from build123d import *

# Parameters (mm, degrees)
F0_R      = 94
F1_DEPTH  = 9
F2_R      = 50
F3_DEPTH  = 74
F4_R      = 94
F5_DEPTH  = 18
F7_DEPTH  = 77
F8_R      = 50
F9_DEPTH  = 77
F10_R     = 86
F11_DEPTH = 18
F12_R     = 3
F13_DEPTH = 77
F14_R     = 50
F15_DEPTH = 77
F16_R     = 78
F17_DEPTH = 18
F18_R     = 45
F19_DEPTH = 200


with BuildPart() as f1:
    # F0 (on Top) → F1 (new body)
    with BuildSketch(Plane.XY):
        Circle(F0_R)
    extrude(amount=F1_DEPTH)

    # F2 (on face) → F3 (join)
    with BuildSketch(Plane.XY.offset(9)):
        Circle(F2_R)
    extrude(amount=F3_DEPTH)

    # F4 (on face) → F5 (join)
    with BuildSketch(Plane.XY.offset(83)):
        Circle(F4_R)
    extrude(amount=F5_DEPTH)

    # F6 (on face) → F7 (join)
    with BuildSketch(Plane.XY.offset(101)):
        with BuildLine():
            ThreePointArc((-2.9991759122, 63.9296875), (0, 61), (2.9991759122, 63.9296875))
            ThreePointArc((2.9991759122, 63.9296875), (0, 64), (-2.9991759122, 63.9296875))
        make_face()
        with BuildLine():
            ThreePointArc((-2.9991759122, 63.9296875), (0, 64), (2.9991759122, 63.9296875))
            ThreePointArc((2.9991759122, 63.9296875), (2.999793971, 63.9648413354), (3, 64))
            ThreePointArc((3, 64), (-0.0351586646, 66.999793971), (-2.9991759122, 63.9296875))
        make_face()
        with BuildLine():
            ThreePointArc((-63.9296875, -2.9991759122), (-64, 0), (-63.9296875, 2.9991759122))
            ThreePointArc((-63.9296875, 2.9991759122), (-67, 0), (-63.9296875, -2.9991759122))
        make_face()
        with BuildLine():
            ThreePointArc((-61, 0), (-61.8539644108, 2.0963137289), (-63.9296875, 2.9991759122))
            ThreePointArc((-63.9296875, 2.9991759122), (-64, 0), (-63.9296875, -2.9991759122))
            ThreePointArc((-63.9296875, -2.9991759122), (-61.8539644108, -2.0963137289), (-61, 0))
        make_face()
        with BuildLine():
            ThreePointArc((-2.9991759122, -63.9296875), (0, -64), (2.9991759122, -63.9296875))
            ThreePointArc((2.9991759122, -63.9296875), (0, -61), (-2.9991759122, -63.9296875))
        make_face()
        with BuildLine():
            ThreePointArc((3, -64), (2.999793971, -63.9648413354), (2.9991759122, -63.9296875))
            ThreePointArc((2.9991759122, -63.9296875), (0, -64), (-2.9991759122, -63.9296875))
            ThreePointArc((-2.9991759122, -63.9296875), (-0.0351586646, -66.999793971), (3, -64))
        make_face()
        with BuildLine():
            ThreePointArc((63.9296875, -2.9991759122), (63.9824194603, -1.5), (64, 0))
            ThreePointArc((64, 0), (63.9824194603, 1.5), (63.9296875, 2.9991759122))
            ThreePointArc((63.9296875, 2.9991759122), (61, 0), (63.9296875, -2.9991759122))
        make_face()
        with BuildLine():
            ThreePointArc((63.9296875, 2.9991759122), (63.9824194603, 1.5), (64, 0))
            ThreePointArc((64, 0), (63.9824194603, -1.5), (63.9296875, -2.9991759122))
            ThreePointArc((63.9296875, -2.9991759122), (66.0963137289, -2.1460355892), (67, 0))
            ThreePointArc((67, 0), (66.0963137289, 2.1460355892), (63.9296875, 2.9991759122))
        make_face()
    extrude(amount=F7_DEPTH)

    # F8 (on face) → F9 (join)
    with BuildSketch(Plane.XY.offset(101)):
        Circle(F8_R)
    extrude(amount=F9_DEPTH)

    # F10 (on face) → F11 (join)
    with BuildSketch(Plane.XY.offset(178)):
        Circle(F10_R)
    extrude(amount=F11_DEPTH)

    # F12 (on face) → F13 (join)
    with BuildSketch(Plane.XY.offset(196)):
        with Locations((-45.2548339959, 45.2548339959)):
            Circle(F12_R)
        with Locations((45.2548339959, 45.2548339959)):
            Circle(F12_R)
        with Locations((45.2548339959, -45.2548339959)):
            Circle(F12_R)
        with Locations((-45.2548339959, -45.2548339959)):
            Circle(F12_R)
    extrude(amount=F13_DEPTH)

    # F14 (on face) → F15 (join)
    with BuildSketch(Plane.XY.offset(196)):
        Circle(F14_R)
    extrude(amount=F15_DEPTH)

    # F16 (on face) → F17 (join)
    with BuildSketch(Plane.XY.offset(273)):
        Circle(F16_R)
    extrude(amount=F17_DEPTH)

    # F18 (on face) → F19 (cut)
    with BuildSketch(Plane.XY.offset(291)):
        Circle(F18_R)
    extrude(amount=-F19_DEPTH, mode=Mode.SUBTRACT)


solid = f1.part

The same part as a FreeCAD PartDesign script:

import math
import FreeCAD as App
import Part
import Sketcher
from FreeCAD import Vector

doc = App.newDocument("Part")
body = doc.addObject("PartDesign::Body", "Body")

sketch1 = body.newObject("Sketcher::SketchObject", "Sketch")
sketch1.AttachmentSupport = (doc.getObject("XY_Plane"), [""])
sketch1.MapMode = "FlatFace"
sketch1.addGeometry(Part.Circle(Vector(0, 0, 0), Vector(0, 0, 1), 94), False)
sketch1.addConstraint(Sketcher.Constraint("Coincident", 0, 3, -1, 1))
sketch1.addConstraint(Sketcher.Constraint("Diameter", 0, 188.0))
pad1 = body.newObject("PartDesign::Pad", "Pad")
pad1.Profile = sketch1
pad1.Length = 9

sketch2 = body.newObject("Sketcher::SketchObject", "Sketch001")
sketch2.AttachmentSupport = (doc.getObject("XY_Plane"), [""])
sketch2.MapMode = "FlatFace"
sketch2.AttachmentOffset = App.Placement(Vector(0, 0, 9), App.Rotation())
sketch2.addGeometry(Part.Circle(Vector(0, 0, 0), Vector(0, 0, 1), 50), False)
sketch2.addConstraint(Sketcher.Constraint("Coincident", 0, 3, -1, 1))
sketch2.addConstraint(Sketcher.Constraint("Diameter", 0, 100.0))
pad2 = body.newObject("PartDesign::Pad", "Pad001")
pad2.Profile = sketch2
pad2.Length = 74

sketch3 = body.newObject("Sketcher::SketchObject", "Sketch002")
sketch3.AttachmentSupport = (doc.getObject("XY_Plane"), [""])
sketch3.MapMode = "FlatFace"
sketch3.AttachmentOffset = App.Placement(Vector(0, 0, 83), App.Rotation())
sketch3.addGeometry(Part.Circle(Vector(0, 0, 0), Vector(0, 0, 1), 94), False)
sketch3.addConstraint(Sketcher.Constraint("Coincident", 0, 3, -1, 1))
sketch3.addConstraint(Sketcher.Constraint("Diameter", 0, 188.0))
pad3 = body.newObject("PartDesign::Pad", "Pad002")
pad3.Profile = sketch3
pad3.Length = 18

sketch4 = body.newObject("Sketcher::SketchObject", "Sketch003")
sketch4.AttachmentSupport = (doc.getObject("XY_Plane"), [""])
sketch4.MapMode = "FlatFace"
sketch4.AttachmentOffset = App.Placement(Vector(0, 0, 101), App.Rotation())
sketch4.addGeometry(Part.ArcOfCircle(Part.Circle(Vector(0, 64, 0), Vector(0, 0, 1), 3), math.radians(-179), math.radians(-1)), False)
sketch4.addGeometry(Part.ArcOfCircle(Part.Circle(Vector(0, 64, 0), Vector(0, 0, 1), 3), math.radians(-1.34), math.radians(0)), False)
sketch4.addGeometry(Part.ArcOfCircle(Part.Circle(Vector(0, 64, 0), Vector(0, 0, 1), 3), math.radians(0), math.radians(181)), False)
sketch4.addGeometry(Part.ArcOfCircle(Part.Circle(Vector(-64, 0, 0), Vector(0, 0, 1), 3), math.radians(89), math.radians(271)), False)
sketch4.addGeometry(Part.ArcOfCircle(Part.Circle(Vector(-64, 0, 0), Vector(0, 0, 1), 3), math.radians(-89), math.radians(0)), False)
sketch4.addGeometry(Part.ArcOfCircle(Part.Circle(Vector(-64, 0, 0), Vector(0, 0, 1), 3), math.radians(0), math.radians(89)), False)
sketch4.addGeometry(Part.ArcOfCircle(Part.Circle(Vector(0, -64, 0), Vector(0, 0, 1), 3), math.radians(1), math.radians(179)), False)
sketch4.addGeometry(Part.ArcOfCircle(Part.Circle(Vector(0, -64, 0), Vector(0, 0, 1), 3), math.radians(179), math.radians(360)), False)
sketch4.addGeometry(Part.ArcOfCircle(Part.Circle(Vector(0, -64, 0), Vector(0, 0, 1), 3), math.radians(0), math.radians(1.34)), False)
sketch4.addGeometry(Part.ArcOfCircle(Part.Circle(Vector(64, 0, 0), Vector(0, 0, 1), 3), math.radians(91), math.radians(269)), False)
sketch4.addGeometry(Part.ArcOfCircle(Part.Circle(Vector(64, 0, 0), Vector(0, 0, 1), 3), math.radians(-91), math.radians(0)), False)
sketch4.addGeometry(Part.ArcOfCircle(Part.Circle(Vector(64, 0, 0), Vector(0, 0, 1), 3), math.radians(0), math.radians(91)), False)
sketch4.addConstraint(Sketcher.Constraint("Tangent", 0, 2, 1, 1))
sketch4.addConstraint(Sketcher.Constraint("Tangent", 1, 2, 2, 1))
sketch4.addConstraint(Sketcher.Constraint("Tangent", 2, 2, 0, 1))
sketch4.addConstraint(Sketcher.Constraint("Tangent", 3, 2, 4, 1))
sketch4.addConstraint(Sketcher.Constraint("Tangent", 4, 2, 5, 1))
sketch4.addConstraint(Sketcher.Constraint("Tangent", 5, 2, 3, 1))
sketch4.addConstraint(Sketcher.Constraint("Tangent", 6, 2, 7, 1))
sketch4.addConstraint(Sketcher.Constraint("Tangent", 7, 2, 8, 1))
sketch4.addConstraint(Sketcher.Constraint("Tangent", 8, 2, 6, 1))
sketch4.addConstraint(Sketcher.Constraint("Tangent", 9, 2, 10, 1))
sketch4.addConstraint(Sketcher.Constraint("Tangent", 10, 2, 11, 1))
sketch4.addConstraint(Sketcher.Constraint("Tangent", 11, 2, 9, 1))
sketch4.addConstraint(Sketcher.Constraint("Equal", 2, 3))
sketch4.addConstraint(Sketcher.Constraint("Equal", 5, 6))
sketch4.addConstraint(Sketcher.Constraint("Equal", 8, 9))
sketch4.addConstraint(Sketcher.Constraint("Symmetric", 0, 3, 6, 3, -1, 1))
sketch4.addConstraint(Sketcher.Constraint("Symmetric", 3, 3, 9, 3, -1, 1))
sketch4.addConstraint(Sketcher.Constraint("Symmetric", 0, 2, 2, 2, -2))
sketch4.addConstraint(Sketcher.Constraint("Symmetric", 3, 2, 9, 2, -2))
sketch4.addConstraint(Sketcher.Constraint("PointOnObject", 4, 2, -1))
sketch4.addConstraint(Sketcher.Constraint("PointOnObject", 10, 2, -1))
sketch4.addConstraint(Sketcher.Constraint("Horizontal", 2, 3, 1, 2))
sketch4.addConstraint(Sketcher.Constraint("Horizontal", 8, 3, 7, 2))
sketch4.addConstraint(Sketcher.Constraint("Horizontal", 6, 2, 8, 2))
sketch4.addConstraint(Sketcher.Constraint("Horizontal", 5, 2, 11, 2))
sketch4.addConstraint(Sketcher.Constraint("Vertical", 3, 2, 5, 2))
sketch4.addConstraint(Sketcher.Constraint("Vertical", 2, 2, 6, 2))
sketch4.addConstraint(Sketcher.Constraint("Radius", 0, 3.0))
sketch4.addConstraint(Sketcher.Constraint("DistanceY", -1, 1, 0, 3, 64.0))
sketch4.addConstraint(Sketcher.Constraint("DistanceX", 3, 3, -1, 1, 64.0))
sketch4.addConstraint(Sketcher.Constraint("DistanceX", 2, 2, 0, 2, 5.998352))
sketch4.addConstraint(Sketcher.Constraint("DistanceY", 3, 2, 5, 2, 5.998352))
pad4 = body.newObject("PartDesign::Pad", "Pad003")
pad4.Profile = sketch4
pad4.Length = 77

sketch5 = body.newObject("Sketcher::SketchObject", "Sketch004")
sketch5.AttachmentSupport = (doc.getObject("XY_Plane"), [""])
sketch5.MapMode = "FlatFace"
sketch5.AttachmentOffset = App.Placement(Vector(0, 0, 101), App.Rotation())
sketch5.addGeometry(Part.Circle(Vector(0, 0, 0), Vector(0, 0, 1), 50), False)
sketch5.addConstraint(Sketcher.Constraint("Coincident", 0, 3, -1, 1))
sketch5.addConstraint(Sketcher.Constraint("Diameter", 0, 100.0))
pad5 = body.newObject("PartDesign::Pad", "Pad004")
pad5.Profile = sketch5
pad5.Length = 77

sketch6 = body.newObject("Sketcher::SketchObject", "Sketch005")
sketch6.AttachmentSupport = (doc.getObject("XY_Plane"), [""])
sketch6.MapMode = "FlatFace"
sketch6.AttachmentOffset = App.Placement(Vector(0, 0, 178), App.Rotation())
sketch6.addGeometry(Part.Circle(Vector(0, 0, 0), Vector(0, 0, 1), 86), False)
sketch6.addConstraint(Sketcher.Constraint("Coincident", 0, 3, -1, 1))
sketch6.addConstraint(Sketcher.Constraint("Diameter", 0, 172.0))
pad6 = body.newObject("PartDesign::Pad", "Pad005")
pad6.Profile = sketch6
pad6.Length = 18

sketch7 = body.newObject("Sketcher::SketchObject", "Sketch006")
sketch7.AttachmentSupport = (doc.getObject("XY_Plane"), [""])
sketch7.MapMode = "FlatFace"
sketch7.AttachmentOffset = App.Placement(Vector(0, 0, 196), App.Rotation())
sketch7.addGeometry(Part.Circle(Vector(-45.3, 45.3, 0), Vector(0, 0, 1), 3), False)
sketch7.addGeometry(Part.Circle(Vector(45.3, 45.3, 0), Vector(0, 0, 1), 3), False)
sketch7.addGeometry(Part.Circle(Vector(45.3, -45.3, 0), Vector(0, 0, 1), 3), False)
sketch7.addGeometry(Part.Circle(Vector(-45.3, -45.3, 0), Vector(0, 0, 1), 3), False)
sketch7.addConstraint(Sketcher.Constraint("Equal", 0, 1))
sketch7.addConstraint(Sketcher.Constraint("Equal", 1, 2))
sketch7.addConstraint(Sketcher.Constraint("Equal", 2, 3))
sketch7.addConstraint(Sketcher.Constraint("Symmetric", 0, 3, 2, 3, -1, 1))
sketch7.addConstraint(Sketcher.Constraint("Symmetric", 1, 3, 3, 3, -1, 1))
sketch7.addConstraint(Sketcher.Constraint("Symmetric", 0, 3, 1, 3, -2))
sketch7.addConstraint(Sketcher.Constraint("Diameter", 0, 6.0))
sketch7.addConstraint(Sketcher.Constraint("DistanceX", 0, 3, -1, 1, 45.254834))
sketch7.addConstraint(Sketcher.Constraint("DistanceY", -1, 1, 0, 3, 45.254834))
pad7 = body.newObject("PartDesign::Pad", "Pad006")
pad7.Profile = sketch7
pad7.Length = 77

sketch8 = body.newObject("Sketcher::SketchObject", "Sketch007")
sketch8.AttachmentSupport = (doc.getObject("XY_Plane"), [""])
sketch8.MapMode = "FlatFace"
sketch8.AttachmentOffset = App.Placement(Vector(0, 0, 196), App.Rotation())
sketch8.addGeometry(Part.Circle(Vector(0, 0, 0), Vector(0, 0, 1), 50), False)
sketch8.addConstraint(Sketcher.Constraint("Coincident", 0, 3, -1, 1))
sketch8.addConstraint(Sketcher.Constraint("Diameter", 0, 100.0))
pad8 = body.newObject("PartDesign::Pad", "Pad007")
pad8.Profile = sketch8
pad8.Length = 77

sketch9 = body.newObject("Sketcher::SketchObject", "Sketch008")
sketch9.AttachmentSupport = (doc.getObject("XY_Plane"), [""])
sketch9.MapMode = "FlatFace"
sketch9.AttachmentOffset = App.Placement(Vector(0, 0, 273), App.Rotation())
sketch9.addGeometry(Part.Circle(Vector(0, 0, 0), Vector(0, 0, 1), 78), False)
sketch9.addConstraint(Sketcher.Constraint("Coincident", 0, 3, -1, 1))
sketch9.addConstraint(Sketcher.Constraint("Diameter", 0, 156.0))
pad9 = body.newObject("PartDesign::Pad", "Pad008")
pad9.Profile = sketch9
pad9.Length = 18

sketch10 = body.newObject("Sketcher::SketchObject", "Sketch009")
sketch10.AttachmentSupport = (doc.getObject("XY_Plane"), [""])
sketch10.MapMode = "FlatFace"
sketch10.AttachmentOffset = App.Placement(Vector(0, 0, 291), App.Rotation())
sketch10.addGeometry(Part.Circle(Vector(0, 0, 0), Vector(0, 0, 1), 45), False)
sketch10.addConstraint(Sketcher.Constraint("Coincident", 0, 3, -1, 1))
sketch10.addConstraint(Sketcher.Constraint("Diameter", 0, 90.0))
pocket1 = body.newObject("PartDesign::Pocket", "Pocket")
pocket1.Profile = sketch10
pocket1.Length = 200

doc.recompute()
